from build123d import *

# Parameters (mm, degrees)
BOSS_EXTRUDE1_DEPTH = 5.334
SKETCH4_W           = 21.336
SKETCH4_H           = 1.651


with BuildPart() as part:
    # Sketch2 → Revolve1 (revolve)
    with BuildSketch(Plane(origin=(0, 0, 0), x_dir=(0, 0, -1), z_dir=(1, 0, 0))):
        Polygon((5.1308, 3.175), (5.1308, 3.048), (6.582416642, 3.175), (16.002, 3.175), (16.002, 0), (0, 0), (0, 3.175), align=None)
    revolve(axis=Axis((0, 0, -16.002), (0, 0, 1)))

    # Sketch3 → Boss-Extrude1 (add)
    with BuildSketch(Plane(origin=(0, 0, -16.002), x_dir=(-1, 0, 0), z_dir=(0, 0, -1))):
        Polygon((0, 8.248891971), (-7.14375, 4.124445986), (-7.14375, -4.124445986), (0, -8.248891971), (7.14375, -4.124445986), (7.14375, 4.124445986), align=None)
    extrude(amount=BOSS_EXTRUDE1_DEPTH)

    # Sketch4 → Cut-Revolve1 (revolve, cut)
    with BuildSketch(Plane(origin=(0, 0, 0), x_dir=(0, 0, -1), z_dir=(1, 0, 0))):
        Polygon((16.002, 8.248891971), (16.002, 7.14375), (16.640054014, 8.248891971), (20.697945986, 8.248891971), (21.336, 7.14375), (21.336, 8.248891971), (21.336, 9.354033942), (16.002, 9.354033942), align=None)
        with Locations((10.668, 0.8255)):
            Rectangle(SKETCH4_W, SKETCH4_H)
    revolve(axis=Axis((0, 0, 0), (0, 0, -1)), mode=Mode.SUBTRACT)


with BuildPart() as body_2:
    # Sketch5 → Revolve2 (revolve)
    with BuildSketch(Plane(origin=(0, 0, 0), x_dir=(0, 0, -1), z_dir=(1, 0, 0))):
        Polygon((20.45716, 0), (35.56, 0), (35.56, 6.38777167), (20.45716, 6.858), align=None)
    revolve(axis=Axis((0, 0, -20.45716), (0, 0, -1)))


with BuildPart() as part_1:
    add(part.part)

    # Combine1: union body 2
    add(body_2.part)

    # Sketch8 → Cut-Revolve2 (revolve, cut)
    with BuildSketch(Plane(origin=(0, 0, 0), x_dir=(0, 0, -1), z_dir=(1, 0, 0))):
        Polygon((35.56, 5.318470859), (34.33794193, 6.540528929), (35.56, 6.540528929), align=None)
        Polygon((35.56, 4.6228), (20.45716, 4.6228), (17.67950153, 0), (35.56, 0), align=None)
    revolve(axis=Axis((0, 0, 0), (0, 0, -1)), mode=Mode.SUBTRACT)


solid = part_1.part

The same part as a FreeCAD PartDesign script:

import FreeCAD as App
import Part
import Sketcher
from FreeCAD import Vector
Q = App.Units.Quantity


def add_polygon(sketch, points):
    """Adds a closed chain of lines whose ends are joined by coincident constraints."""
    first, n = sketch.GeometryCount, len(points)
    for a, b in zip(points, points[1:] + points[:1]):
        sketch.addGeometry(Part.LineSegment(App.Vector(*a, 0), App.Vector(*b, 0)), False)
    for i in range(n):
        sketch.addConstraint(Sketcher.Constraint("Coincident", first + i, 2, first + (i + 1) % n, 1))

doc = App.newDocument("Part")
body = doc.addObject("PartDesign::Body", "Body")

# Sketch on YZ plane
sketch1 = body.newObject("Sketcher::SketchObject", "Sketch")
sketch1.AttachmentSupport = (doc.getObject("YZ_Plane"), [""])
sketch1.MapMode = "FlatFace"
add_polygon(sketch1, [(3.048, -5.1308), (3.175, -5.1308), (3.175, 0), (0, 0), (0, -16.002), (3.175, -16.002), (3.175, -6.582417)])  # lines 0-6
sketch1.addConstraint([
    Sketcher.Constraint("Horizontal", 0),
    Sketcher.Constraint("Vertical", 1),
    Sketcher.Constraint("Horizontal", 2),
    Sketcher.Constraint("Vertical", 3),
    Sketcher.Constraint("Horizontal", 4),
    Sketcher.Constraint("Vertical", 5),
    Sketcher.Constraint("Coincident", 2, 2, -1, 1),
    Sketcher.Constraint("Vertical", 1, 2, 4, 2),
    Sketcher.Constraint("Angle", 6, Q("95 deg")),
    Sketcher.Constraint("DistanceY", 3, 2, 3, 1, Q("0.63 in")),
    Sketcher.Constraint("DistanceX", 0, 1, 0, 2, Q("0.005 in")),
    Sketcher.Constraint("DistanceX", 2, 2, 2, 1, Q("0.125 in")),
    Sketcher.Constraint("DistanceY", 1, 1, 1, 2, Q("0.202 in")),
])
revolution = body.newObject("PartDesign::Revolution", "Revolution")
revolution.Profile = sketch1
revolution.ReferenceAxis = (sketch1, ["V_Axis"])
revolution.Angle = 360

# Sketch on XY plane
sketch2 = body.newObject("Sketcher::SketchObject", "Sketch001")
sketch2.AttachmentSupport = (doc.getObject("XY_Plane"), [""])
sketch2.MapMode = "FlatFace"
sketch2.AttachmentOffset = App.Placement(Vector(0, 0, -0.63 * 25.4), App.Rotation())
add_polygon(sketch2, [(0, 8.248892), (7.14375, 4.124446), (7.14375, -4.124446), (0, -8.248892), (-7.14375, -4.124446), (-7.14375, 4.124446)])  # lines 0-5
sketch2.addConstraint([
    Sketcher.Constraint("Vertical", 1),
    Sketcher.Constraint("Vertical", 4),
    Sketcher.Constraint("Symmetric", 0, 2, 3, 2, -1, 1),
    Sketcher.Constraint("Symmetric", 2, 2, 5, 2, -1, 1),
    Sketcher.Constraint("PointOnObject", 2, 2, -2),
    Sketcher.Constraint("Parallel", 2, 5),
    Sketcher.Constraint("Horizontal", 1, 2, 3, 2),
    Sketcher.Constraint("Angle", 0, Q("-30 deg")),
    Sketcher.Constraint("DistanceX", -1, 1, 0, 2, Q("0.28125 in")),
    Sketcher.Constraint("DistanceY", 1, 2, 1, 1, 8.248892),
])
pad1 = body.newObject("PartDesign::Pad", "Pad")
pad1.Profile = sketch2
pad1.Length = Q("0.21 in")
pad1.Reversed = True

# Sketch on YZ plane
sketch3 = body.newObject("Sketcher::SketchObject", "Sketch002")
sketch3.AttachmentSupport = (doc.getObject("YZ_Plane"), [""])
sketch3.MapMode = "FlatFace"
add_polygon(sketch3, [(7.14375, -16.002), (8.248892, -16.640054), (8.248892, -20.697946), (7.14375, -21.336), (9.354034, -21.336), (9.354034, -16.002)])  # lines 0-5
add_polygon(sketch3, [(1.651, 0), (0, 0), (0, -21.336), (1.651, -21.336)])  # lines 6-9
sketch3.addConstraint([
    Sketcher.Constraint("Vertical", 1),
    Sketcher.Constraint("Horizontal", 3),
    Sketcher.Constraint("Vertical", 4),
    Sketcher.Constraint("Horizontal", 5),
    Sketcher.Constraint("Horizontal", 6),
    Sketcher.Constraint("Vertical", 7),
    Sketcher.Constraint("Horizontal", 8),
    Sketcher.Constraint("Vertical", 9),
    Sketcher.Constraint("Coincident", 6, 2, -1, 1),
    Sketcher.Constraint("Horizontal", 3, 2, 7, 2),
    Sketcher.Constraint("Vertical", 2, 2, 5, 2),
    Sketcher.Constraint("Equal", 0, 2),
    Sketcher.Constraint("Angle", 0, Q("-30 deg")),
    Sketcher.Constraint("DistanceY", 4, 1, 4, 2, Q("0.21 in")),
    Sketcher.Constraint("DistanceY", 7, 2, 7, 1, Q("0.84 in")),
    Sketcher.Constraint("DistanceX", 6, 2, 6, 1, Q("0.065 in")),
    Sketcher.Constraint("DistanceX", -1, 1, 2, 2, Q("0.28125 in")),
    Sketcher.Constraint("DistanceY", 1, 2, 1, 1, 4.057892),
    Sketcher.Constraint("DistanceX", 3, 1, 3, 2, 2.210284),
])
groove = body.newObject("PartDesign::Groove", "Groove")
groove.Profile = sketch3
groove.ReferenceAxis = (sketch3, ["V_Axis"])
groove.Angle = 360
body2 = doc.addObject("PartDesign::Body", "Body001")

# Sketch on YZ plane
sketch4 = body2.newObject("Sketcher::SketchObject", "Sketch003")
sketch4.AttachmentSupport = (doc.getObject("YZ_Plane001"), [""])
sketch4.MapMode = "FlatFace"
add_polygon(sketch4, [(0, -20.45716), (0, -35.56), (6.387772, -35.56), (6.858, -20.45716)])  # lines 0-3
sketch4.addConstraint([
    Sketcher.Constraint("Vertical", 0),
    Sketcher.Constraint("Horizontal", 1),
    Sketcher.Constraint("Horizontal", 3),
    Sketcher.Constraint("PointOnObject", 0, 2, -2),
    Sketcher.Constraint("DistanceX", 3, 2, 3, 1, Q("0.27 in")),
    Sketcher.Constraint("DistanceY", 0, 2, -1, 1, Q("1.4 in")),
    Sketcher.Constraint("DistanceY", 0, 2, 0, 1, Q("0.5946 in")),
    Sketcher.Constraint("DistanceX", 1, 1, 1, 2, 6.387772),
])
revolution2 = body2.newObject("PartDesign::Revolution", "Revolution001")
revolution2.Profile = sketch4
revolution2.ReferenceAxis = (sketch4, ["V_Axis"])
revolution2.Angle = 360
doc.recompute()

boolean = body.newObject("PartDesign::Boolean", "Boolean")
boolean.Type = "Fuse"
boolean.addObjects([body2])

# Sketch on YZ plane
sketch5 = body.newObject("Sketcher::SketchObject", "Sketch004")
sketch5.AttachmentSupport = (doc.getObject("YZ_Plane"), [""])
sketch5.MapMode = "FlatFace"
add_polygon(sketch5, [(6.540529, -34.337942), (5.318471, -35.56), (6.540529, -35.56)])  # lines 0-2
add_polygon(sketch5, [(4.6228, -35.56), (4.6228, -20.45716), (0, -17.679502), (0, -35.56)])  # lines 3-6
sketch5.addConstraint([
    Sketcher.Constraint("Horizontal", 1),
    Sketcher.Constraint("Vertical", 2),
    Sketcher.Constraint("Vertical", 3),
    Sketcher.Constraint("Vertical", 5),
    Sketcher.Constraint("Horizontal", 6),
    Sketcher.Constraint("PointOnObject", 4, 2, -2),
    Sketcher.Constraint("Horizontal", 1, 2, 5, 2),
    Sketcher.Constraint("Equal", 1, 2),
    Sketcher.Constraint("Angle", 4, Q("149 deg")),
    Sketcher.Constraint("DistanceY", 0, 2, -1, 1, Q("1.4 in")),
    Sketcher.Constraint("DistanceX", 6, 1, 6, 2, Q("0.182 in")),
    Sketcher.Constraint("DistanceY", 3, 1, 3, 2, Q("0.5946 in")),
    Sketcher.Constraint("DistanceX", 1, 1, 1, 2, 1.222058),
    Sketcher.Constraint("DistanceX", -1, 1, 0, 2, 5.318471),
])
groove2 = body.newObject("PartDesign::Groove", "Groove001")
groove2.Profile = sketch5
groove2.ReferenceAxis = (sketch5, ["V_Axis"])
groove2.Angle = 360

doc.recompute()
